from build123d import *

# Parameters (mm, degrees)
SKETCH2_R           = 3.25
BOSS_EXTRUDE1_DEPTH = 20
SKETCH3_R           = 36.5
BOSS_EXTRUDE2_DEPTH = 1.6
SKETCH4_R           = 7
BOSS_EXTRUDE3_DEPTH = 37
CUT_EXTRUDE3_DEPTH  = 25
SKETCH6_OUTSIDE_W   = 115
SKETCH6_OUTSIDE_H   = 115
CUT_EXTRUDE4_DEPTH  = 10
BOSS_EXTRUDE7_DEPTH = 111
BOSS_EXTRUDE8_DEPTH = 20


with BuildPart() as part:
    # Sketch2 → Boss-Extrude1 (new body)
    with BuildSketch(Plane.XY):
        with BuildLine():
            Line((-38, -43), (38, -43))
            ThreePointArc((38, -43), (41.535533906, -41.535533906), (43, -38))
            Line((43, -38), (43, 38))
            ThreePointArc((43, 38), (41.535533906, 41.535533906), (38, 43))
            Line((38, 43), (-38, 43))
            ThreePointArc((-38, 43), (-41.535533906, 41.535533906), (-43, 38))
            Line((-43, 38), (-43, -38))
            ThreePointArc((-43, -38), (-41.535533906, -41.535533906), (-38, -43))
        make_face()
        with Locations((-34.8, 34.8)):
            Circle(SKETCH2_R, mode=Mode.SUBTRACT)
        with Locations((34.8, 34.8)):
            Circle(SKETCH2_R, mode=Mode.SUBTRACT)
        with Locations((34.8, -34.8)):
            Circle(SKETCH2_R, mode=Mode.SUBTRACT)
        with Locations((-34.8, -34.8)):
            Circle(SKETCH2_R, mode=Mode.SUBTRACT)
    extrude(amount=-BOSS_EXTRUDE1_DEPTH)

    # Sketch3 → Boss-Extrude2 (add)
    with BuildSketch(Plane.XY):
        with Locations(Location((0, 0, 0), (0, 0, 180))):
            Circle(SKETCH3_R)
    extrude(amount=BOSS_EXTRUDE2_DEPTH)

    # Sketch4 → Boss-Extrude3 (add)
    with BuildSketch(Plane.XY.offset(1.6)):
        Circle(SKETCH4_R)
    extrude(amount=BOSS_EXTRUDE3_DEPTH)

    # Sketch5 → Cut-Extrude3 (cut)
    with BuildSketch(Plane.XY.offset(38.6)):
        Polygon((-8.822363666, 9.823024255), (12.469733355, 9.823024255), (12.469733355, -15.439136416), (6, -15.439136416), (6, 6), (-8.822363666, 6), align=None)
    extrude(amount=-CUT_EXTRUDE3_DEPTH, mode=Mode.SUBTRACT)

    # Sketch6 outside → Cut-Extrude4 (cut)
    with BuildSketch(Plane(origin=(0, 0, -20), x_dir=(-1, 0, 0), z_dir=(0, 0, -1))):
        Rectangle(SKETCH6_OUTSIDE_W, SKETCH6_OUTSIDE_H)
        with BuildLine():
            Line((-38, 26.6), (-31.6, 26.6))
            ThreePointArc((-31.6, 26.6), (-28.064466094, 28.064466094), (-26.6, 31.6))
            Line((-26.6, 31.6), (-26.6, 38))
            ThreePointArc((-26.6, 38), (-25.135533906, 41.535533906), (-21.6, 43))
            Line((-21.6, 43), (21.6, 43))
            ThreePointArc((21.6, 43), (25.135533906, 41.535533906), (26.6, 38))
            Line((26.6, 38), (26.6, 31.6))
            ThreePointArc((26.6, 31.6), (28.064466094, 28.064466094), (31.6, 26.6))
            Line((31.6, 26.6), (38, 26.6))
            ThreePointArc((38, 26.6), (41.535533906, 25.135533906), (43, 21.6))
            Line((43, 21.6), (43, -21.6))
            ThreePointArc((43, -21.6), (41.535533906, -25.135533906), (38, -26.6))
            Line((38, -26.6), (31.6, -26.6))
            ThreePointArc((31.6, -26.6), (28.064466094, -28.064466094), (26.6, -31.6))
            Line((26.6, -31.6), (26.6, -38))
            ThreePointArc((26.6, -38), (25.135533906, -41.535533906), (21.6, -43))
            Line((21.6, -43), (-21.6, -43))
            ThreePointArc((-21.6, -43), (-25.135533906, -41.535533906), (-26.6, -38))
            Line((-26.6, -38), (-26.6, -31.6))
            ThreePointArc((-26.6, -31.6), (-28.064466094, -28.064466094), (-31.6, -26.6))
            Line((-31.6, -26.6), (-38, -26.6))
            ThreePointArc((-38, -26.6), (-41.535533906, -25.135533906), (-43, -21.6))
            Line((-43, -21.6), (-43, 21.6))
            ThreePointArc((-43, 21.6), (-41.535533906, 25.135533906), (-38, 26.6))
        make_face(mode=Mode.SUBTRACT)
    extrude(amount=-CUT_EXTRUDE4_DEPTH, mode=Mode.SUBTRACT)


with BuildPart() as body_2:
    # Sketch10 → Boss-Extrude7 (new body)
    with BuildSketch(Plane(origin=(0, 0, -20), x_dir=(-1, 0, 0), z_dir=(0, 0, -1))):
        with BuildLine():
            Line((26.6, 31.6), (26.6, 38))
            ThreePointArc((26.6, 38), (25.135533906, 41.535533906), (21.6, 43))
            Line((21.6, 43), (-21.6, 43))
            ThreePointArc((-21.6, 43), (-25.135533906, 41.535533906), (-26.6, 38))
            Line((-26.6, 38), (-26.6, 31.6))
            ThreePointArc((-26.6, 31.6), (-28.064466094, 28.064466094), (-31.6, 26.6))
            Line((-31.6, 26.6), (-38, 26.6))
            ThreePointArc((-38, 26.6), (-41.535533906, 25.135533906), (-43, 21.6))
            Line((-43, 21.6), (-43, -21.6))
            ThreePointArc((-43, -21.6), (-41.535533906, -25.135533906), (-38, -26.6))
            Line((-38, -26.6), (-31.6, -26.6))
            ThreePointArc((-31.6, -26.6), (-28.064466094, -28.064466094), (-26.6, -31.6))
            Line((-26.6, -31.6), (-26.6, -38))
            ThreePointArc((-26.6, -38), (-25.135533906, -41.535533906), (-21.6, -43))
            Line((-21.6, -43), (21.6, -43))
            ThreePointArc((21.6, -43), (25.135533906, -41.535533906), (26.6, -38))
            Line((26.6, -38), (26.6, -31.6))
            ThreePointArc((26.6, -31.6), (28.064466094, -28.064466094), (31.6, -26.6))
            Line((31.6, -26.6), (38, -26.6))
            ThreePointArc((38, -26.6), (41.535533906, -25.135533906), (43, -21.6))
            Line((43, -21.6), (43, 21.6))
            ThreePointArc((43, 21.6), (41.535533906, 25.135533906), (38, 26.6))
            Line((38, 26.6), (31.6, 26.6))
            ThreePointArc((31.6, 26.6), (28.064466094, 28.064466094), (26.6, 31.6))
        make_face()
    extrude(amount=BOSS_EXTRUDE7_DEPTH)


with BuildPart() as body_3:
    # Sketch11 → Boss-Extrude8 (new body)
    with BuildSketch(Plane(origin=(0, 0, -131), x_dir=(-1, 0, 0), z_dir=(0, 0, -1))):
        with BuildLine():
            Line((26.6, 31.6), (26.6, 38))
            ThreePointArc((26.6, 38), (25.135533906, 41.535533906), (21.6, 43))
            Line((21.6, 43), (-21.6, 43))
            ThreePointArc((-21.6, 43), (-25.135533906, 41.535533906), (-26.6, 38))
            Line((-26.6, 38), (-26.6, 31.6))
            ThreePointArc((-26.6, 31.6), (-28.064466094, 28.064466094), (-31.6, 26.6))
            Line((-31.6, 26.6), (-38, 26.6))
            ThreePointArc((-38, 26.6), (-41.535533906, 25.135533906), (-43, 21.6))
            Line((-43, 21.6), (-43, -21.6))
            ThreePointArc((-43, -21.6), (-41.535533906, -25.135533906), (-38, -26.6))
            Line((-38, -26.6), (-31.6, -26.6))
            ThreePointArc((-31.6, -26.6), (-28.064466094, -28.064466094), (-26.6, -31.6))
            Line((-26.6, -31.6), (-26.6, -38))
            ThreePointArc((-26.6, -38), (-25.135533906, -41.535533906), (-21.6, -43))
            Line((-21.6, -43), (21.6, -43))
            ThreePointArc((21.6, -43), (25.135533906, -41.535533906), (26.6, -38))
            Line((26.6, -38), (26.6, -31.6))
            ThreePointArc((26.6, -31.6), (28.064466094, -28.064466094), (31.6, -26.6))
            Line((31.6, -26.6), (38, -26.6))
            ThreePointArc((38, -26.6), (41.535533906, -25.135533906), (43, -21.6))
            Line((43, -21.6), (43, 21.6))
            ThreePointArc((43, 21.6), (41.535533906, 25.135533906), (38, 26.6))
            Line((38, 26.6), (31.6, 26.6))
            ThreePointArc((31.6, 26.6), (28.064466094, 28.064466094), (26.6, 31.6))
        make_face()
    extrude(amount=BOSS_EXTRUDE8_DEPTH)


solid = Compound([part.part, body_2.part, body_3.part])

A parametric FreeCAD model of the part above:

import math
import FreeCAD as App
import Part
import Sketcher
from FreeCAD import Vector

doc = App.newDocument("Part")
body = doc.addObject("PartDesign::Body", "Body")

sketch1 = body.newObject("Sketcher::SketchObject", "Sketch")
sketch1.AttachmentSupport = (doc.getObject("XY_Plane"), [""])
sketch1.MapMode = "FlatFace"
sketch1.addGeometry(Part.LineSegment(Vector(-38, -43, 0), Vector(38, -43, 0)), False)
sketch1.addGeometry(Part.ArcOfCircle(Part.Circle(Vector(38, -38, 0), Vector(0, 0, 1), 5), math.radians(-90), math.radians(0)), False)
sketch1.addGeometry(Part.LineSegment(Vector(43, -38, 0), Vector(43, 38, 0)), False)
sketch1.addGeometry(Part.ArcOfCircle(Part.Circle(Vector(38, 38, 0), Vector(0, 0, 1), 5), math.radians(0), math.radians(90)), False)
sketch1.addGeometry(Part.LineSegment(Vector(38, 43, 0), Vector(-38, 43, 0)), False)
sketch1.addGeometry(Part.ArcOfCircle(Part.Circle(Vector(-38, 38, 0), Vector(0, 0, 1), 5), math.radians(90), math.radians(180)), False)
sketch1.addGeometry(Part.LineSegment(Vector(-43, 38, 0), Vector(-43, -38, 0)), False)
sketch1.addGeometry(Part.ArcOfCircle(Part.Circle(Vector(-38, -38, 0), Vector(0, 0, 1), 5), math.radians(180), math.radians(270)), False)
sketch1.addGeometry(Part.Circle(Vector(-34.8, -34.8, 0), Vector(0, 0, 1), 3.2), False)
sketch1.addGeometry(Part.Circle(Vector(34.8, -34.8, 0), Vector(0, 0, 1), 3.2), False)
sketch1.addGeometry(Part.Circle(Vector(-34.8, 34.8, 0), Vector(0, 0, 1), 3.2), False)
sketch1.addGeometry(Part.Circle(Vector(34.8, 34.8, 0), Vector(0, 0, 1), 3.2), False)
sketch1.addConstraint(Sketcher.Constraint("Tangent", 0, 2, 1, 1))
sketch1.addConstraint(Sketcher.Constraint("Tangent", 1, 2, 2, 1))
sketch1.addConstraint(Sketcher.Constraint("Tangent", 2, 2, 3, 1))
sketch1.addConstraint(Sketcher.Constraint("Tangent", 3, 2, 4, 1))
sketch1.addConstraint(Sketcher.Constraint("Tangent", 4, 2, 5, 1))
sketch1.addConstraint(Sketcher.Constraint("Tangent", 5, 2, 6, 1))
sketch1.addConstraint(Sketcher.Constraint("Tangent", 6, 2, 7, 1))
sketch1.addConstraint(Sketcher.Constraint("Tangent", 7, 2, 0, 1))
sketch1.addConstraint(Sketcher.Constraint("Horizontal", 0))
sketch1.addConstraint(Sketcher.Constraint("Vertical", 2))
sketch1.addConstraint(Sketcher.Constraint("Horizontal", 4))
sketch1.addConstraint(Sketcher.Constraint("Vertical", 6))
sketch1.addConstraint(Sketcher.Constraint("Equal", 1, 3))
sketch1.addConstraint(Sketcher.Constraint("Equal", 3, 5))
sketch1.addConstraint(Sketcher.Constraint("Equal", 5, 7))
sketch1.addConstraint(Sketcher.Constraint("Equal", 8, 9))
sketch1.addConstraint(Sketcher.Constraint("Equal", 9, 10))
sketch1.addConstraint(Sketcher.Constraint("Equal", 10, 11))
sketch1.addConstraint(Sketcher.Constraint("Symmetric", 1, 3, 5, 3, -1, 1))
sketch1.addConstraint(Sketcher.Constraint("Symmetric", 9, 3, 10, 3, -1, 1))
sketch1.addConstraint(Sketcher.Constraint("Symmetric", 8, 3, 11, 3, -1, 1))
sketch1.addConstraint(Sketcher.Constraint("Symmetric", 8, 3, 9, 3, -2))
sketch1.addConstraint(Sketcher.Constraint("Equal", 4, 2))
sketch1.addConstraint(Sketcher.Constraint("Radius", 1, 5.0))
sketch1.addConstraint(Sketcher.Constraint("Diameter", 8, 6.5))
sketch1.addConstraint(Sketcher.Constraint("DistanceX", 0, 1, 0, 2, 76.0))
sketch1.addConstraint(Sketcher.Constraint("DistanceX", 8, 3, -1, 1, 34.8))
sketch1.addConstraint(Sketcher.Constraint("DistanceY", 8, 3, -1, 1, 34.8))
pad1 = body.newObject("PartDesign::Pad", "Pad")
pad1.Profile = sketch1
pad1.Length = 20
pad1.Reversed = True

sketch2 = body.newObject("Sketcher::SketchObject", "Sketch001")
sketch2.AttachmentSupport = (doc.getObject("XY_Plane"), [""])
sketch2.MapMode = "FlatFace"
sketch2.addGeometry(Part.Circle(Vector(0, 0, 0), Vector(0, 0, 1), 36), False)
sketch2.addConstraint(Sketcher.Constraint("Coincident", 0, 3, -1, 1))
sketch2.addConstraint(Sketcher.Constraint("Diameter", 0, 73.0))
pad2 = body.newObject("PartDesign::Pad", "Pad001")
pad2.Profile = sketch2
pad2.Length = 1.6

sketch3 = body.newObject("Sketcher::SketchObject", "Sketch002")
sketch3.AttachmentSupport = (doc.getObject("XY_Plane"), [""])
sketch3.MapMode = "FlatFace"
sketch3.AttachmentOffset = App.Placement(Vector(0, 0, 1.6), App.Rotation())
sketch3.addGeometry(Part.Circle(Vector(0, 0, 0), Vector(0, 0, 1), 7), False)
sketch3.addConstraint(Sketcher.Constraint("Coincident", 0, 3, -1, 1))
sketch3.addConstraint(Sketcher.Constraint("Diameter", 0, 14.0))
pad3 = body.newObject("PartDesign::Pad", "Pad002")
pad3.Profile = sketch3
pad3.Length = 37

sketch4 = body.newObject("Sketcher::SketchObject", "Sketch003")
sketch4.AttachmentSupport = (doc.getObject("XY_Plane"), [""])
sketch4.MapMode = "FlatFace"
sketch4.AttachmentOffset = App.Placement(Vector(0, 0, 38.6), App.Rotation())
sketch4.addGeometry(Part.LineSegment(Vector(12.5, 9.8, 0), Vector(-8.8, 9.8, 0)), False)
sketch4.addGeometry(Part.LineSegment(Vector(-8.8, 9.8, 0), Vector(-8.8, 6, 0)), False)
sketch4.addGeometry(Part.LineSegment(Vector(-8.8, 6, 0), Vector(6, 6, 0)), False)
sketch4.addGeometry(Part.LineSegment(Vector(6, 6, 0), Vector(6, -15.4, 0)), False)
sketch4.addGeometry(Part.LineSegment(Vector(6, -15.4, 0), Vector(12.5, -15.4, 0)), False)
sketch4.addGeometry(Part.LineSegment(Vector(12.5, -15.4, 0), Vector(12.5, 9.8, 0)), False)
sketch4.addConstraint(Sketcher.Constraint("Coincident", 0, 2, 1, 1))
sketch4.addConstraint(Sketcher.Constraint("Coincident", 1, 2, 2, 1))
sketch4.addConstraint(Sketcher.Constraint("Coincident", 2, 2, 3, 1))
sketch4.addConstraint(Sketcher.Constraint("Coincident", 3, 2, 4, 1))
sketch4.addConstraint(Sketcher.Constraint("Coincident", 4, 2, 5, 1))
sketch4.addConstraint(Sketcher.Constraint("Coincident", 5, 2, 0, 1))
sketch4.addConstraint(Sketcher.Constraint("Horizontal", 0))
sketch4.addConstraint(Sketcher.Constraint("Vertical", 1))
sketch4.addConstraint(Sketcher.Constraint("Horizontal", 2))
sketch4.addConstraint(Sketcher.Constraint("Vertical", 3))
sketch4.addConstraint(Sketcher.Constraint("Horizontal", 4))
sketch4.addConstraint(Sketcher.Constraint("Vertical", 5))
sketch4.addConstraint(Sketcher.Constraint("DistanceY", -1, 1, 1, 2, 6.0))
sketch4.addConstraint(Sketcher.Constraint("DistanceX", -1, 1, 2, 2, 6.0))
sketch4.addConstraint(Sketcher.Constraint("DistanceY", 5, 1, 5, 2, 25.262161))
sketch4.addConstraint(Sketcher.Constraint("DistanceX", 0, 2, 0, 1, 21.292097))
sketch4.addConstraint(Sketcher.Constraint("DistanceX", 2, 1, 2, 2, 14.822364))
sketch4.addConstraint(Sketcher.Constraint("DistanceY", 1, 2, 1, 1, 3.823024))
pocket1 = body.newObject("PartDesign::Pocket", "Pocket")
pocket1.Profile = sketch4
pocket1.Length = 25

sketch5 = body.newObject("Sketcher::SketchObject", "Sketch004")
sketch5.AttachmentSupport = (doc.getObject("XY_Plane"), [""])
sketch5.MapMode = "FlatFace"
sketch5.AttachmentOffset = App.Placement(Vector(0, 0, -20), App.Rotation())
sketch5.addGeometry(Part.LineSegment(Vector(58, 58, 0), Vector(58, -58, 0)), False)
sketch5.addGeometry(Part.LineSegment(Vector(58, -58, 0), Vector(-58, -58, 0)), False)
sketch5.addGeometry(Part.LineSegment(Vector(-58, -58, 0), Vector(-58, 58, 0)), False)
sketch5.addGeometry(Part.LineSegment(Vector(-58, 58, 0), Vector(58, 58, 0)), False)
sketch5.addGeometry(Part.ArcOfCircle(Part.Circle(Vector(38, 22, 0), Vector(0, 0, 1), 5), math.radians(0), math.radians(90)), False)
sketch5.addGeometry(Part.LineSegment(Vector(38, 27, 0), Vector(32, 27, 0)), False)
sketch5.addGeometry(Part.ArcOfCircle(Part.Circle(Vector(32, 32, 0), Vector(0, 0, 1), 5), math.radians(180), math.radians(270)), False)
sketch5.addGeometry(Part.LineSegment(Vector(27, 32, 0), Vector(27, 38, 0)), False)
sketch5.addGeometry(Part.ArcOfCircle(Part.Circle(Vector(22, 38, 0), Vector(0, 0, 1), 5), math.radians(0), math.radians(90)), False)
sketch5.addGeometry(Part.LineSegment(Vector(22, 43, 0), Vector(-22, 43, 0)), False)
sketch5.addGeometry(Part.ArcOfCircle(Part.Circle(Vector(-22, 38, 0), Vector(0, 0, 1), 5), math.radians(90), math.radians(180)), False)
sketch5.addGeometry(Part.LineSegment(Vector(-27, 38, 0), Vector(-27, 32, 0)), False)
sketch5.addGeometry(Part.ArcOfCircle(Part.Circle(Vector(-32, 32, 0), Vector(0, 0, 1), 5), math.radians(-90), math.radians(0)), False)
sketch5.addGeometry(Part.LineSegment(Vector(-32, 27, 0), Vector(-38, 27, 0)), False)
sketch5.addGeometry(Part.ArcOfCircle(Part.Circle(Vector(-38, 22, 0), Vector(0, 0, 1), 5), math.radians(90), math.radians(180)), False)
sketch5.addGeometry(Part.LineSegment(Vector(-43, 22, 0), Vector(-43, -22, 0)), False)
sketch5.addGeometry(Part.ArcOfCircle(Part.Circle(Vector(-38, -22, 0), Vector(0, 0, 1), 5), math.radians(180), math.radians(270)), False)
sketch5.addGeometry(Part.LineSegment(Vector(-38, -27, 0), Vector(-32, -27, 0)), False)
sketch5.addGeometry(Part.ArcOfCircle(Part.Circle(Vector(-32, -32, 0), Vector(0, 0, 1), 5), math.radians(0), math.radians(90)), False)
sketch5.addGeometry(Part.LineSegment(Vector(-27, -32, 0), Vector(-27, -38, 0)), False)
sketch5.addGeometry(Part.ArcOfCircle(Part.Circle(Vector(-22, -38, 0), Vector(0, 0, 1), 5), math.radians(180), math.radians(270)), False)
sketch5.addGeometry(Part.LineSegment(Vector(-22, -43, 0), Vector(22, -43, 0)), False)
sketch5.addGeometry(Part.ArcOfCircle(Part.Circle(Vector(22, -38, 0), Vector(0, 0, 1), 5), math.radians(-90), math.radians(0)), False)
sketch5.addGeometry(Part.LineSegment(Vector(27, -38, 0), Vector(27, -32, 0)), False)
sketch5.addGeometry(Part.ArcOfCircle(Part.Circle(Vector(32, -32, 0), Vector(0, 0, 1), 5), math.radians(90), math.radians(180)), False)
sketch5.addGeometry(Part.LineSegment(Vector(32, -27, 0), Vector(38, -27, 0)), False)
sketch5.addGeometry(Part.ArcOfCircle(Part.Circle(Vector(38, -22, 0), Vector(0, 0, 1), 5), math.radians(-90), math.radians(0)), False)
sketch5.addGeometry(Part.LineSegment(Vector(43, -22, 0), Vector(43, 22, 0)), False)
sketch5.addConstraint(Sketcher.Constraint("Coincident", 0, 2, 1, 1))
sketch5.addConstraint(Sketcher.Constraint("Coincident", 1, 2, 2, 1))
sketch5.addConstraint(Sketcher.Constraint("Coincident", 2, 2, 3, 1))
sketch5.addConstraint(Sketcher.Constraint("Coincident", 3, 2, 0, 1))
sketch5.addConstraint(Sketcher.Constraint("Tangent", 4, 2, 5, 1))
sketch5.addConstraint(Sketcher.Constraint("Tangent", 5, 2, 6, 2))
sketch5.addConstraint(Sketcher.Constraint("Tangent", 6, 1, 7, 1))
sketch5.addConstraint(Sketcher.Constraint("Tangent", 7, 2, 8, 1))
sketch5.addConstraint(Sketcher.Constraint("Tangent", 8, 2, 9, 1))
sketch5.addConstraint(Sketcher.Constraint("Tangent", 9, 2, 10, 1))
sketch5.addConstraint(Sketcher.Constraint("Tangent", 10, 2, 11, 1))
sketch5.addConstraint(Sketcher.Constraint("Tangent", 11, 2, 12, 2))
sketch5.addConstraint(Sketcher.Constraint("Tangent", 12, 1, 13, 1))
sketch5.addConstraint(Sketcher.Constraint("Tangent", 13, 2, 14, 1))
sketch5.addConstraint(Sketcher.Constraint("Tangent", 14, 2, 15, 1))
sketch5.addConstraint(Sketcher.Constraint("Tangent", 15, 2, 16, 1))
sketch5.addConstraint(Sketcher.Constraint("Tangent", 16, 2, 17, 1))
sketch5.addConstraint(Sketcher.Constraint("Tangent", 17, 2, 18, 2))
sketch5.addConstraint(Sketcher.Constraint("Tangent", 18, 1, 19, 1))
sketch5.addConstraint(Sketcher.Constraint("Tangent", 19, 2, 20, 1))
sketch5.addConstraint(Sketcher.Constraint("Tangent", 20, 2, 21, 1))
sketch5.addConstraint(Sketcher.Constraint("Tangent", 21, 2, 22, 1))
sketch5.addConstraint(Sketcher.Constraint("Tangent", 22, 2, 23, 1))
sketch5.addConstraint(Sketcher.Constraint("Tangent", 23, 2, 24, 2))
sketch5.addConstraint(Sketcher.Constraint("Tangent", 24, 1, 25, 1))
sketch5.addConstraint(Sketcher.Constraint("Tangent", 25, 2, 26, 1))
sketch5.addConstraint(Sketcher.Constraint("Tangent", 26, 2, 27, 1))
sketch5.addConstraint(Sketcher.Constraint("Tangent", 27, 2, 4, 1))
sketch5.addConstraint(Sketcher.Constraint("Vertical", 0))
sketch5.addConstraint(Sketcher.Constraint("Horizontal", 1))
sketch5.addConstraint(Sketcher.Constraint("Vertical", 2))
sketch5.addConstraint(Sketcher.Constraint("Horizontal", 3))
sketch5.addConstraint(Sketcher.Constraint("Horizontal", 5))
sketch5.addConstraint(Sketcher.Constraint("Vertical", 7))
sketch5.addConstraint(Sketcher.Constraint("Horizontal", 9))
sketch5.addConstraint(Sketcher.Constraint("Vertical", 11))
sketch5.addConstraint(Sketcher.Constraint("Horizontal", 13))
sketch5.addConstraint(Sketcher.Constraint("Vertical", 15))
sketch5.addConstraint(Sketcher.Constraint("Horizontal", 17))
sketch5.addConstraint(Sketcher.Constraint("Vertical", 19))
sketch5.addConstraint(Sketcher.Constraint("Horizontal", 21))
sketch5.addConstraint(Sketcher.Constraint("Vertical", 23))
sketch5.addConstraint(Sketcher.Constraint("Horizontal", 25))
sketch5.addConstraint(Sketcher.Constraint("Vertical", 27))
sketch5.addConstraint(Sketcher.Constraint("Equal", 4, 6))
sketch5.addConstraint(Sketcher.Constraint("Equal", 6, 8))
sketch5.addConstraint(Sketcher.Constraint("Equal", 8, 10))
sketch5.addConstraint(Sketcher.Constraint("Equal", 10, 12))
sketch5.addConstraint(Sketcher.Constraint("Equal", 12, 14))
sketch5.addConstraint(Sketcher.Constraint("Equal", 14, 16))
sketch5.addConstraint(Sketcher.Constraint("Equal", 16, 18))
sketch5.addConstraint(Sketcher.Constraint("Equal", 18, 20))
sketch5.addConstraint(Sketcher.Constraint("Equal", 20, 22))
sketch5.addConstraint(Sketcher.Constraint("Equal", 22, 24))
sketch5.addConstraint(Sketcher.Constraint("Equal", 24, 26))
sketch5.addConstraint(Sketcher.Constraint("Symmetric", 4, 3, 16, 3, -1, 1))
sketch5.addConstraint(Sketcher.Constraint("Symmetric", 8, 3, 20, 3, -1, 1))
sketch5.addConstraint(Sketcher.Constraint("Symmetric", 12, 3, 24, 3, -1, 1))
sketch5.addConstraint(Sketcher.Constraint("Symmetric", 0, 2, 2, 2, -1, 1))
sketch5.addConstraint(Sketcher.Constraint("Symmetric", 6, 3, 12, 3, -2))
sketch5.addConstraint(Sketcher.Constraint("Equal", 3, 0))
sketch5.addConstraint(Sketcher.Constraint("Equal", 25, 7))
sketch5.addConstraint(Sketcher.Constraint("Equal", 21, 15))
sketch5.addConstraint(Sketcher.Constraint("Radius", 4, 5.0))
sketch5.addConstraint(Sketcher.Constraint("DistanceX", 1, 2, 1, 1, 115.0))
sketch5.addConstraint(Sketcher.Constraint("DistanceX", 5, 2, 5, 1, 6.4))
sketch5.addConstraint(Sketcher.Constraint("DistanceX", 9, 2, 9, 1, 43.2))
pocket2 = body.newObject("PartDesign::Pocket", "Pocket001")
pocket2.Profile = sketch5
pocket2.Length = 10
pocket2.Reversed = True
body2 = doc.addObject("PartDesign::Body", "Body001")

sketch6 = body2.newObject("Sketcher::SketchObject", "Sketch005")
sketch6.AttachmentSupport = (doc.getObject("XY_Plane001"), [""])
sketch6.MapMode = "FlatFace"
sketch6.AttachmentOffset = App.Placement(Vector(0, 0, -20), App.Rotation())
sketch6.addGeometry(Part.LineSegment(Vector(-27, 32, 0), Vector(-27, 38, 0)), False)
sketch6.addGeometry(Part.ArcOfCircle(Part.Circle(Vector(-22, 38, 0), Vector(0, 0, 1), 5), math.radians(90), math.radians(180)), False)
sketch6.addGeometry(Part.LineSegment(Vector(-22, 43, 0), Vector(22, 43, 0)), False)
sketch6.addGeometry(Part.ArcOfCircle(Part.Circle(Vector(22, 38, 0), Vector(0, 0, 1), 5), math.radians(0), math.radians(90)), False)
sketch6.addGeometry(Part.LineSegment(Vector(27, 38, 0), Vector(27, 32, 0)), False)
sketch6.addGeometry(Part.ArcOfCircle(Part.Circle(Vector(32, 32, 0), Vector(0, 0, 1), 5), math.radians(180), math.radians(270)), False)
sketch6.addGeometry(Part.LineSegment(Vector(32, 27, 0), Vector(38, 27, 0)), False)
sketch6.addGeometry(Part.ArcOfCircle(Part.Circle(Vector(38, 22, 0), Vector(0, 0, 1), 5), math.radians(0), math.radians(90)), False)
sketch6.addGeometry(Part.LineSegment(Vector(43, 22, 0), Vector(43, -22, 0)), False)
sketch6.addGeometry(Part.ArcOfCircle(Part.Circle(Vector(38, -22, 0), Vector(0, 0, 1), 5), math.radians(-90), math.radians(0)), False)
sketch6.addGeometry(Part.LineSegment(Vector(38, -27, 0), Vector(32, -27, 0)), False)
sketch6.addGeometry(Part.ArcOfCircle(Part.Circle(Vector(32, -32, 0), Vector(0, 0, 1), 5), math.radians(90), math.radians(180)), False)
sketch6.addGeometry(Part.LineSegment(Vector(27, -32, 0), Vector(27, -38, 0)), False)
sketch6.addGeometry(Part.ArcOfCircle(Part.Circle(Vector(22, -38, 0), Vector(0, 0, 1), 5), math.radians(-90), math.radians(0)), False)
sketch6.addGeometry(Part.LineSegment(Vector(22, -43, 0), Vector(-22, -43, 0)), False)
sketch6.addGeometry(Part.ArcOfCircle(Part.Circle(Vector(-22, -38, 0), Vector(0, 0, 1), 5), math.radians(180), math.radians(270)), False)
sketch6.addGeometry(Part.LineSegment(Vector(-27, -38, 0), Vector(-27, -32, 0)), False)
sketch6.addGeometry(Part.ArcOfCircle(Part.Circle(Vector(-32, -32, 0), Vector(0, 0, 1), 5), math.radians(0), math.radians(90)), False)
sketch6.addGeometry(Part.LineSegment(Vector(-32, -27, 0), Vector(-38, -27, 0)), False)
sketch6.addGeometry(Part.ArcOfCircle(Part.Circle(Vector(-38, -22, 0), Vector(0, 0, 1), 5), math.radians(180), math.radians(270)), False)
sketch6.addGeometry(Part.LineSegment(Vector(-43, -22, 0), Vector(-43, 22, 0)), False)
sketch6.addGeometry(Part.ArcOfCircle(Part.Circle(Vector(-38, 22, 0), Vector(0, 0, 1), 5), math.radians(90), math.radians(180)), False)
sketch6.addGeometry(Part.LineSegment(Vector(-38, 27, 0), Vector(-32, 27, 0)), False)
sketch6.addGeometry(Part.ArcOfCircle(Part.Circle(Vector(-32, 32, 0), Vector(0, 0, 1), 5), math.radians(-90), math.radians(0)), False)
sketch6.addConstraint(Sketcher.Constraint("Tangent", 0, 2, 1, 2))
sketch6.addConstraint(Sketcher.Constraint("Tangent", 1, 1, 2, 1))
sketch6.addConstraint(Sketcher.Constraint("Tangent", 2, 2, 3, 2))
sketch6.addConstraint(Sketcher.Constraint("Tangent", 3, 1, 4, 1))
sketch6.addConstraint(Sketcher.Constraint("Tangent", 4, 2, 5, 1))
sketch6.addConstraint(Sketcher.Constraint("Tangent", 5, 2, 6, 1))
sketch6.addConstraint(Sketcher.Constraint("Tangent", 6, 2, 7, 2))
sketch6.addConstraint(Sketcher.Constraint("Tangent", 7, 1, 8, 1))
sketch6.addConstraint(Sketcher.Constraint("Tangent", 8, 2, 9, 2))
sketch6.addConstraint(Sketcher.Constraint("Tangent", 9, 1, 10, 1))
sketch6.addConstraint(Sketcher.Constraint("Tangent", 10, 2, 11, 1))
sketch6.addConstraint(Sketcher.Constraint("Tangent", 11, 2, 12, 1))
sketch6.addConstraint(Sketcher.Constraint("Tangent", 12, 2, 13, 2))
sketch6.addConstraint(Sketcher.Constraint("Tangent", 13, 1, 14, 1))
sketch6.addConstraint(Sketcher.Constraint("Tangent", 14, 2, 15, 2))
sketch6.addConstraint(Sketcher.Constraint("Tangent", 15, 1, 16, 1))
sketch6.addConstraint(Sketcher.Constraint("Tangent", 16, 2, 17, 1))
sketch6.addConstraint(Sketcher.Constraint("Tangent", 17, 2, 18, 1))
sketch6.addConstraint(Sketcher.Constraint("Tangent", 18, 2, 19, 2))
sketch6.addConstraint(Sketcher.Constraint("Tangent", 19, 1, 20, 1))
sketch6.addConstraint(Sketcher.Constraint("Tangent", 20, 2, 21, 2))
sketch6.addConstraint(Sketcher.Constraint("Tangent", 21, 1, 22, 1))
sketch6.addConstraint(Sketcher.Constraint("Tangent", 22, 2, 23, 1))
sketch6.addConstraint(Sketcher.Constraint("Tangent", 23, 2, 0, 1))
sketch6.addConstraint(Sketcher.Constraint("Vertical", 0))
sketch6.addConstraint(Sketcher.Constraint("Horizontal", 2))
sketch6.addConstraint(Sketcher.Constraint("Vertical", 4))
sketch6.addConstraint(Sketcher.Constraint("Horizontal", 6))
sketch6.addConstraint(Sketcher.Constraint("Vertical", 8))
sketch6.addConstraint(Sketcher.Constraint("Horizontal", 10))
sketch6.addConstraint(Sketcher.Constraint("Vertical", 12))
sketch6.addConstraint(Sketcher.Constraint("Horizontal", 14))
sketch6.addConstraint(Sketcher.Constraint("Vertical", 16))
sketch6.addConstraint(Sketcher.Constraint("Horizontal", 18))
sketch6.addConstraint(Sketcher.Constraint("Vertical", 20))
sketch6.addConstraint(Sketcher.Constraint("Horizontal", 22))
sketch6.addConstraint(Sketcher.Constraint("Equal", 1, 3))
sketch6.addConstraint(Sketcher.Constraint("Equal", 3, 5))
sketch6.addConstraint(Sketcher.Constraint("Equal", 5, 7))
sketch6.addConstraint(Sketcher.Constraint("Equal", 7, 9))
sketch6.addConstraint(Sketcher.Constraint("Equal", 9, 11))
sketch6.addConstraint(Sketcher.Constraint("Equal", 11, 13))
sketch6.addConstraint(Sketcher.Constraint("Equal", 13, 15))
sketch6.addConstraint(Sketcher.Constraint("Equal", 15, 17))
sketch6.addConstraint(Sketcher.Constraint("Equal", 17, 19))
sketch6.addConstraint(Sketcher.Constraint("Equal", 19, 21))
sketch6.addConstraint(Sketcher.Constraint("Equal", 21, 23))
sketch6.addConstraint(Sketcher.Constraint("Symmetric", 1, 3, 13, 3, -1, 1))
sketch6.addConstraint(Sketcher.Constraint("Symmetric", 5, 3, 17, 3, -1, 1))
sketch6.addConstraint(Sketcher.Constraint("Symmetric", 9, 3, 21, 3, -1, 1))
sketch6.addConstraint(Sketcher.Constraint("Symmetric", 11, 3, 17, 3, -2))
sketch6.addConstraint(Sketcher.Constraint("Equal", 22, 0))
sketch6.addConstraint(Sketcher.Constraint("Equal", 14, 8))
sketch6.addConstraint(Sketcher.Constraint("Radius", 1, 5.0))
sketch6.addConstraint(Sketcher.Constraint("DistanceX", 2, 1, 2, 2, 43.2))
sketch6.addConstraint(Sketcher.Constraint("DistanceX", 6, 1, 6, 2, 6.4))
pad4 = body2.newObject("PartDesign::Pad", "Pad003")
pad4.Profile = sketch6
pad4.Length = 111
pad4.Reversed = True
body3 = doc.addObject("PartDesign::Body", "Body002")

sketch7 = body3.newObject("Sketcher::SketchObject", "Sketch006")
sketch7.AttachmentSupport = (doc.getObject("XY_Plane002"), [""])
sketch7.MapMode = "FlatFace"
sketch7.AttachmentOffset = App.Placement(Vector(0, 0, -131), App.Rotation())
sketch7.addGeometry(Part.LineSegment(Vector(-27, 32, 0), Vector(-27, 38, 0)), False)
sketch7.addGeometry(Part.ArcOfCircle(Part.Circle(Vector(-22, 38, 0), Vector(0, 0, 1), 5), math.radians(90), math.radians(180)), False)
sketch7.addGeometry(Part.LineSegment(Vector(-22, 43, 0), Vector(22, 43, 0)), False)
sketch7.addGeometry(Part.ArcOfCircle(Part.Circle(Vector(22, 38, 0), Vector(0, 0, 1), 5), math.radians(0), math.radians(90)), False)
sketch7.addGeometry(Part.LineSegment(Vector(27, 38, 0), Vector(27, 32, 0)), False)
sketch7.addGeometry(Part.ArcOfCircle(Part.Circle(Vector(32, 32, 0), Vector(0, 0, 1), 5), math.radians(180), math.radians(270)), False)
sketch7.addGeometry(Part.LineSegment(Vector(32, 27, 0), Vector(38, 27, 0)), False)
sketch7.addGeometry(Part.ArcOfCircle(Part.Circle(Vector(38, 22, 0), Vector(0, 0, 1), 5), math.radians(0), math.radians(90)), False)
sketch7.addGeometry(Part.LineSegment(Vector(43, 22, 0), Vector(43, -22, 0)), False)
sketch7.addGeometry(Part.ArcOfCircle(Part.Circle(Vector(38, -22, 0), Vector(0, 0, 1), 5), math.radians(-90), math.radians(0)), False)
sketch7.addGeometry(Part.LineSegment(Vector(38, -27, 0), Vector(32, -27, 0)), False)
sketch7.addGeometry(Part.ArcOfCircle(Part.Circle(Vector(32, -32, 0), Vector(0, 0, 1), 5), math.radians(90), math.radians(180)), False)
sketch7.addGeometry(Part.LineSegment(Vector(27, -32, 0), Vector(27, -38, 0)), False)
sketch7.addGeometry(Part.ArcOfCircle(Part.Circle(Vector(22, -38, 0), Vector(0, 0, 1), 5), math.radians(-90), math.radians(0)), False)
sketch7.addGeometry(Part.LineSegment(Vector(22, -43, 0), Vector(-22, -43, 0)), False)
sketch7.addGeometry(Part.ArcOfCircle(Part.Circle(Vector(-22, -38, 0), Vector(0, 0, 1), 5), math.radians(180), math.radians(270)), False)
sketch7.addGeometry(Part.LineSegment(Vector(-27, -38, 0), Vector(-27, -32, 0)), False)
sketch7.addGeometry(Part.ArcOfCircle(Part.Circle(Vector(-32, -32, 0), Vector(0, 0, 1), 5), math.radians(0), math.radians(90)), False)
sketch7.addGeometry(Part.LineSegment(Vector(-32, -27, 0), Vector(-38, -27, 0)), False)
sketch7.addGeometry(Part.ArcOfCircle(Part.Circle(Vector(-38, -22, 0), Vector(0, 0, 1), 5), math.radians(180), math.radians(270)), False)
sketch7.addGeometry(Part.LineSegment(Vector(-43, -22, 0), Vector(-43, 22, 0)), False)
sketch7.addGeometry(Part.ArcOfCircle(Part.Circle(Vector(-38, 22, 0), Vector(0, 0, 1), 5), math.radians(90), math.radians(180)), False)
sketch7.addGeometry(Part.LineSegment(Vector(-38, 27, 0), Vector(-32, 27, 0)), False)
sketch7.addGeometry(Part.ArcOfCircle(Part.Circle(Vector(-32, 32, 0), Vector(0, 0, 1), 5), math.radians(-90), math.radians(0)), False)
sketch7.addConstraint(Sketcher.Constraint("Tangent", 0, 2, 1, 2))
sketch7.addConstraint(Sketcher.Constraint("Tangent", 1, 1, 2, 1))
sketch7.addConstraint(Sketcher.Constraint("Tangent", 2, 2, 3, 2))
sketch7.addConstraint(Sketcher.Constraint("Tangent", 3, 1, 4, 1))
sketch7.addConstraint(Sketcher.Constraint("Tangent", 4, 2, 5, 1))
sketch7.addConstraint(Sketcher.Constraint("Tangent", 5, 2, 6, 1))
sketch7.addConstraint(Sketcher.Constraint("Tangent", 6, 2, 7, 2))
sketch7.addConstraint(Sketcher.Constraint("Tangent", 7, 1, 8, 1))
sketch7.addConstraint(Sketcher.Constraint("Tangent", 8, 2, 9, 2))
sketch7.addConstraint(Sketcher.Constraint("Tangent", 9, 1, 10, 1))
sketch7.addConstraint(Sketcher.Constraint("Tangent", 10, 2, 11, 1))
sketch7.addConstraint(Sketcher.Constraint("Tangent", 11, 2, 12, 1))
sketch7.addConstraint(Sketcher.Constraint("Tangent", 12, 2, 13, 2))
sketch7.addConstraint(Sketcher.Constraint("Tangent", 13, 1, 14, 1))
sketch7.addConstraint(Sketcher.Constraint("Tangent", 14, 2, 15, 2))
sketch7.addConstraint(Sketcher.Constraint("Tangent", 15, 1, 16, 1))
sketch7.addConstraint(Sketcher.Constraint("Tangent", 16, 2, 17, 1))
sketch7.addConstraint(Sketcher.Constraint("Tangent", 17, 2, 18, 1))
sketch7.addConstraint(Sketcher.Constraint("Tangent", 18, 2, 19, 2))
sketch7.addConstraint(Sketcher.Constraint("Tangent", 19, 1, 20, 1))
sketch7.addConstraint(Sketcher.Constraint("Tangent", 20, 2, 21, 2))
sketch7.addConstraint(Sketcher.Constraint("Tangent", 21, 1, 22, 1))
sketch7.addConstraint(Sketcher.Constraint("Tangent", 22, 2, 23, 1))
sketch7.addConstraint(Sketcher.Constraint("Tangent", 23, 2, 0, 1))
sketch7.addConstraint(Sketcher.Constraint("Vertical", 0))
sketch7.addConstraint(Sketcher.Constraint("Horizontal", 2))
sketch7.addConstraint(Sketcher.Constraint("Vertical", 4))
sketch7.addConstraint(Sketcher.Constraint("Horizontal", 6))
sketch7.addConstraint(Sketcher.Constraint("Vertical", 8))
sketch7.addConstraint(Sketcher.Constraint("Horizontal", 10))
sketch7.addConstraint(Sketcher.Constraint("Vertical", 12))
sketch7.addConstraint(Sketcher.Constraint("Horizontal", 14))
sketch7.addConstraint(Sketcher.Constraint("Vertical", 16))
sketch7.addConstraint(Sketcher.Constraint("Horizontal", 18))
sketch7.addConstraint(Sketcher.Constraint("Vertical", 20))
sketch7.addConstraint(Sketcher.Constraint("Horizontal", 22))
sketch7.addConstraint(Sketcher.Constraint("Equal", 1, 3))
sketch7.addConstraint(Sketcher.Constraint("Equal", 3, 5))
sketch7.addConstraint(Sketcher.Constraint("Equal", 5, 7))
sketch7.addConstraint(Sketcher.Constraint("Equal", 7, 9))
sketch7.addConstraint(Sketcher.Constraint("Equal", 9, 11))
sketch7.addConstraint(Sketcher.Constraint("Equal", 11, 13))
sketch7.addConstraint(Sketcher.Constraint("Equal", 13, 15))
sketch7.addConstraint(Sketcher.Constraint("Equal", 15, 17))
sketch7.addConstraint(Sketcher.Constraint("Equal", 17, 19))
sketch7.addConstraint(Sketcher.Constraint("Equal", 19, 21))
sketch7.addConstraint(Sketcher.Constraint("Equal", 21, 23))
sketch7.addConstraint(Sketcher.Constraint("Symmetric", 1, 3, 13, 3, -1, 1))
sketch7.addConstraint(Sketcher.Constraint("Symmetric", 5, 3, 17, 3, -1, 1))
sketch7.addConstraint(Sketcher.Constraint("Symmetric", 9, 3, 21, 3, -1, 1))
sketch7.addConstraint(Sketcher.Constraint("Symmetric", 11, 3, 17, 3, -2))
sketch7.addConstraint(Sketcher.Constraint("Equal", 22, 0))
sketch7.addConstraint(Sketcher.Constraint("Equal", 14, 8))
sketch7.addConstraint(Sketcher.Constraint("Radius", 1, 5.0))
sketch7.addConstraint(Sketcher.Constraint("DistanceX", 2, 1, 2, 2, 43.2))
sketch7.addConstraint(Sketcher.Constraint("DistanceX", 6, 1, 6, 2, 6.4))
pad5 = body3.newObject("PartDesign::Pad", "Pad004")
pad5.Profile = sketch7
pad5.Length = 20
pad5.Reversed = True

doc.recompute()
